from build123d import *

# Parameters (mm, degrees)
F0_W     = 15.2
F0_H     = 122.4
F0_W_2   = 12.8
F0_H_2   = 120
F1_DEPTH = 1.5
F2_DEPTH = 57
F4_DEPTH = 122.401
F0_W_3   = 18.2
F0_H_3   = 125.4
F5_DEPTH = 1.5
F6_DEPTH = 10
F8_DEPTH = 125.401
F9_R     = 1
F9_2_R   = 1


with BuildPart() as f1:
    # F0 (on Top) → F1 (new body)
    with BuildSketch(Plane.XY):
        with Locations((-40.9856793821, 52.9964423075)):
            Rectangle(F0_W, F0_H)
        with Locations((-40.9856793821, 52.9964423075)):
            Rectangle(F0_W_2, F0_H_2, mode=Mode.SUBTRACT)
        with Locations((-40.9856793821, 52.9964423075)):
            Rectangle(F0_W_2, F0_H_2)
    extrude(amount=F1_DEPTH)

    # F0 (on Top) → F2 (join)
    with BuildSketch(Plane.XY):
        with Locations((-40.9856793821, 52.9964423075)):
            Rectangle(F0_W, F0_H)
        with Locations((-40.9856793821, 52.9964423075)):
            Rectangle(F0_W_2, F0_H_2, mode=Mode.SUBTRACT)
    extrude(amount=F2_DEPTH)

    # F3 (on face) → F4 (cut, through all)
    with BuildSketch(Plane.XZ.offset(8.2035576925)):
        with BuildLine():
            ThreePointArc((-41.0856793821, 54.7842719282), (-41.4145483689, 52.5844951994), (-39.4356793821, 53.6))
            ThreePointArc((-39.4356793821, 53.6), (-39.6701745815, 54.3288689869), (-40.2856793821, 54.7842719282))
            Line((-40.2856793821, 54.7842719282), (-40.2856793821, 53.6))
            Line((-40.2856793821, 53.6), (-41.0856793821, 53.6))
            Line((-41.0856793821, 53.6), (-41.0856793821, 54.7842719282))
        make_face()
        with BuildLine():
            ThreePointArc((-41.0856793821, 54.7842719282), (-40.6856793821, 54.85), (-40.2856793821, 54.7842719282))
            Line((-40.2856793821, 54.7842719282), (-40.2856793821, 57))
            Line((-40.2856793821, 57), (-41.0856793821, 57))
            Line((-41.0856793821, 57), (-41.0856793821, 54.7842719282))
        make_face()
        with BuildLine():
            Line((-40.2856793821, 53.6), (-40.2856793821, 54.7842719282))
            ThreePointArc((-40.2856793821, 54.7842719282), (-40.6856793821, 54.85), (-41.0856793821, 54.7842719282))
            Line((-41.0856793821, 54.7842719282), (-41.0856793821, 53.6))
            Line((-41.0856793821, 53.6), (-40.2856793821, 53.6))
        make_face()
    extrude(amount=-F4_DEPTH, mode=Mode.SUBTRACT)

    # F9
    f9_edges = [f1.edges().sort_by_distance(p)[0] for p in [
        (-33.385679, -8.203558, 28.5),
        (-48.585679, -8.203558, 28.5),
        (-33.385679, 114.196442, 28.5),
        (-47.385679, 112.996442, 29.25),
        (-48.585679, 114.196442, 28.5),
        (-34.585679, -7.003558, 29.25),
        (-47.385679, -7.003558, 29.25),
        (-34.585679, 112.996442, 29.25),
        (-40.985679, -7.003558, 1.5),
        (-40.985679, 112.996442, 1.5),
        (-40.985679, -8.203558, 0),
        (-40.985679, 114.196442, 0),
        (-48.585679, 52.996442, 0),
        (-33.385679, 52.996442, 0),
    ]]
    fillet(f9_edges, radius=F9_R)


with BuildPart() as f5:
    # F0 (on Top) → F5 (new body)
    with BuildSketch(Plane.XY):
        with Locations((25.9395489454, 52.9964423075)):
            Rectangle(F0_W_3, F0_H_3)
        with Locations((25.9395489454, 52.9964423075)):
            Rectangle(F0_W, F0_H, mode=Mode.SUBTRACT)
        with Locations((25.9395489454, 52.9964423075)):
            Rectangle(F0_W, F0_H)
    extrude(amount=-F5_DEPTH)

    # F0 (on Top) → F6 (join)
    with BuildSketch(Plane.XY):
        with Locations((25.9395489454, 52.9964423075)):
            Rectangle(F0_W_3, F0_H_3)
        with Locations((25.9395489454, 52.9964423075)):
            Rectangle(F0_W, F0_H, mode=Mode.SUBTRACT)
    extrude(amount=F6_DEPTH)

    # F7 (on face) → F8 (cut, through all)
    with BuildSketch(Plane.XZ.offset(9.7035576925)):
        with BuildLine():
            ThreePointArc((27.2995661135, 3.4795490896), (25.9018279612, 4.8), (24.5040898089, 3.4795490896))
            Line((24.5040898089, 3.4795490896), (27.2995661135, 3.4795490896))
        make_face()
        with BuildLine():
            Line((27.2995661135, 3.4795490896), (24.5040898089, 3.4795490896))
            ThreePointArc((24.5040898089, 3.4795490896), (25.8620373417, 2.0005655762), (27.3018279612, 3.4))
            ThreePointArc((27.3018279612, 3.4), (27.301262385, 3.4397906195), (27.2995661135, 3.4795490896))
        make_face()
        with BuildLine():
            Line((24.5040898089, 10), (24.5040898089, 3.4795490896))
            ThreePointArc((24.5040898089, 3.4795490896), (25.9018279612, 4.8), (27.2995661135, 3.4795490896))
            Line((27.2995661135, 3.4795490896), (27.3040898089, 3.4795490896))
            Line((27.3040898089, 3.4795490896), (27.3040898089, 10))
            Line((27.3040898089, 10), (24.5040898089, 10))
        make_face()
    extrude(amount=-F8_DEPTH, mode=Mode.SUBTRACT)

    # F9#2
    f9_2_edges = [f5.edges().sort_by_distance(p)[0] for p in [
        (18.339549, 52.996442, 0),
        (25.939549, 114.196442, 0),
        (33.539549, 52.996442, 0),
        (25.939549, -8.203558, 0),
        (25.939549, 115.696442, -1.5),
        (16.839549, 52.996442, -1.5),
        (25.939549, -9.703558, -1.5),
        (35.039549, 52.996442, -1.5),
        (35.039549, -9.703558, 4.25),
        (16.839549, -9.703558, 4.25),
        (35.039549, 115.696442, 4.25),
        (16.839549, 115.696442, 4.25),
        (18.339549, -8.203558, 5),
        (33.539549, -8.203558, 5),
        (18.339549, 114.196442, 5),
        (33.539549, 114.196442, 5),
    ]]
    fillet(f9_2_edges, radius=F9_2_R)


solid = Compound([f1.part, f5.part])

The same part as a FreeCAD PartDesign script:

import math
import FreeCAD as App
import Part
import Sketcher
from FreeCAD import Vector


def edges_at(feature, points):
    """Names of the edges that pass closest to the given points."""
    edges = feature.Shape.Edges
    near = lambda p: min(range(len(edges)), key=lambda i: edges[i].distToShape(Part.Vertex(*p))[0])
    return sorted({f"Edge{near(p) + 1}" for p in points})

doc = App.newDocument("Part")
params = doc.addObject("Spreadsheet::Sheet", "Params")
for row, (alias, value) in enumerate([
    ("sketch1_width", "15.2 mm"),
    ("sketch1_height", "122.4 mm"),
    ("pad1_length", "1.5 mm"),
    ("sketch2_height", "120 mm"),
    ("sketch2_width", "15.2 mm"),
    ("sketch2_width2", "12.8 mm"),
    ("sketch2_height2", "122.4 mm"),
    ("pad2_length", "57 mm"),
    ("sketch3_radius", "1.25 mm"),
    ("sketch3_width", "0.8 mm"),
    ("fillet_radius", "1 mm"),
    ("sketch4_width", "18.2 mm"),
    ("sketch4_height", "125.4 mm"),
    ("pad3_length", "1.5 mm"),
    ("sketch5_width", "18.2 mm"),
    ("sketch5_width2", "15.2 mm"),
    ("sketch5_height", "125.4 mm"),
    ("sketch5_height2", "122.4 mm"),
    ("pad4_length", "10 mm"),
    ("sketch6_radius", "1.4 mm"),
    ("sketch6_width", "2.8 mm"),
    ("fillet2_radius", "1 mm"),
], start=1):
    params.set(f"A{row}", alias)
    params.set(f"B{row}", "=" + value)
    params.setAlias(f"B{row}", alias)

body = doc.addObject("PartDesign::Body", "Body")

# Sketch on XY plane
sketch1 = body.newObject("Sketcher::SketchObject", "Sketch")
sketch1.AttachmentSupport = (doc.getObject("XY_Plane"), [""])
sketch1.MapMode = "FlatFace"
sketch1.addGeometry(Part.LineSegment(Vector(-49, 114, 0), Vector(-49, -8, 0)), False)
sketch1.addGeometry(Part.LineSegment(Vector(-49, -8, 0), Vector(-33, -8, 0)), False)
sketch1.addGeometry(Part.LineSegment(Vector(-33, -8, 0), Vector(-33, 114, 0)), False)
sketch1.addGeometry(Part.LineSegment(Vector(-33, 114, 0), Vector(-49, 114, 0)), False)
sketch1.addConstraint(Sketcher.Constraint("Coincident", 0, 2, 1, 1))
sketch1.addConstraint(Sketcher.Constraint("Coincident", 1, 2, 2, 1))
sketch1.addConstraint(Sketcher.Constraint("Coincident", 2, 2, 3, 1))
sketch1.addConstraint(Sketcher.Constraint("Coincident", 3, 2, 0, 1))
sketch1.addConstraint(Sketcher.Constraint("Vertical", 0))
sketch1.addConstraint(Sketcher.Constraint("Horizontal", 1))
sketch1.addConstraint(Sketcher.Constraint("Vertical", 2))
sketch1.addConstraint(Sketcher.Constraint("Horizontal", 3))
sketch1.addConstraint(Sketcher.Constraint("DistanceX", 1, 1, 1, 2, 15.2))
sketch1.addConstraint(Sketcher.Constraint("DistanceY", 0, 2, 0, 1, 122.4))
sketch1.addConstraint(Sketcher.Constraint("DistanceX", 0, 2, -1, 1, 48.585679))
sketch1.addConstraint(Sketcher.Constraint("DistanceY", 0, 2, -1, 1, 8.203558))
sketch1.setExpression("Constraints[8]", "Params.sketch1_width")
sketch1.setExpression("Constraints[9]", "Params.sketch1_height")
pad1 = body.newObject("PartDesign::Pad", "Pad")
pad1.Profile = sketch1
pad1.setExpression("Length", "Params.pad1_length")

# Sketch on XY plane
sketch2 = body.newObject("Sketcher::SketchObject", "Sketch001")
sketch2.AttachmentSupport = (doc.getObject("XY_Plane"), [""])
sketch2.MapMode = "FlatFace"
sketch2.addGeometry(Part.LineSegment(Vector(-49, 114, 0), Vector(-49, -8, 0)), False)
sketch2.addGeometry(Part.LineSegment(Vector(-49, -8, 0), Vector(-33, -8, 0)), False)
sketch2.addGeometry(Part.LineSegment(Vector(-33, -8, 0), Vector(-33, 114, 0)), False)
sketch2.addGeometry(Part.LineSegment(Vector(-33, 114, 0), Vector(-49, 114, 0)), False)
sketch2.addGeometry(Part.LineSegment(Vector(-35, -7, 0), Vector(-47, -7, 0)), False)
sketch2.addGeometry(Part.LineSegment(Vector(-47, -7, 0), Vector(-47, 113, 0)), False)
sketch2.addGeometry(Part.LineSegment(Vector(-47, 113, 0), Vector(-35, 113, 0)), False)
sketch2.addGeometry(Part.LineSegment(Vector(-35, 113, 0), Vector(-35, -7, 0)), False)
sketch2.addConstraint(Sketcher.Constraint("Coincident", 0, 2, 1, 1))
sketch2.addConstraint(Sketcher.Constraint("Coincident", 1, 2, 2, 1))
sketch2.addConstraint(Sketcher.Constraint("Coincident", 2, 2, 3, 1))
sketch2.addConstraint(Sketcher.Constraint("Coincident", 3, 2, 0, 1))
sketch2.addConstraint(Sketcher.Constraint("Coincident", 4, 2, 5, 1))
sketch2.addConstraint(Sketcher.Constraint("Coincident", 5, 2, 6, 1))
sketch2.addConstraint(Sketcher.Constraint("Coincident", 6, 2, 7, 1))
sketch2.addConstraint(Sketcher.Constraint("Coincident", 7, 2, 4, 1))
sketch2.addConstraint(Sketcher.Constraint("Vertical", 0))
sketch2.addConstraint(Sketcher.Constraint("Horizontal", 1))
sketch2.addConstraint(Sketcher.Constraint("Vertical", 2))
sketch2.addConstraint(Sketcher.Constraint("Horizontal", 3))
sketch2.addConstraint(Sketcher.Constraint("Horizontal", 4))
sketch2.addConstraint(Sketcher.Constraint("Vertical", 5))
sketch2.addConstraint(Sketcher.Constraint("Horizontal", 6))
sketch2.addConstraint(Sketcher.Constraint("Vertical", 7))
sketch2.addConstraint(Sketcher.Constraint("DistanceY", 5, 1, 5, 2, 120.0))
sketch2.addConstraint(Sketcher.Constraint("DistanceX", 1, 1, 1, 2, 15.2))
sketch2.addConstraint(Sketcher.Constraint("DistanceX", 4, 2, 4, 1, 12.8))
sketch2.addConstraint(Sketcher.Constraint("DistanceY", 0, 2, 0, 1, 122.4))
sketch2.addConstraint(Sketcher.Constraint("DistanceX", 4, 2, 1, 2, 14.0))
sketch2.addConstraint(Sketcher.Constraint("DistanceY", 0, 2, 4, 2, 1.2))
sketch2.addConstraint(Sketcher.Constraint("DistanceX", 0, 2, -1, 1, 48.585679))
sketch2.addConstraint(Sketcher.Constraint("DistanceY", 0, 2, -1, 1, 8.203558))
sketch2.setExpression("Constraints[16]", "Params.sketch2_height")
sketch2.setExpression("Constraints[17]", "Params.sketch2_width")
sketch2.setExpression("Constraints[18]", "Params.sketch2_width2")
sketch2.setExpression("Constraints[19]", "Params.sketch2_height2")
pad2 = body.newObject("PartDesign::Pad", "Pad001")
pad2.Profile = sketch2
pad2.setExpression("Length", "Params.pad2_length")

# Sketch on XZ plane
sketch3 = body.newObject("Sketcher::SketchObject", "Sketch002")
sketch3.AttachmentSupport = (doc.getObject("XZ_Plane"), [""])
sketch3.MapMode = "FlatFace"
sketch3.AttachmentOffset = App.Placement(Vector(0, 0, 8.203558), App.Rotation())
sketch3.addGeometry(Part.ArcOfCircle(Part.Circle(Vector(-40.7, 53.6, 0), Vector(0, 0, 1), 1.2), math.radians(109), math.radians(360)), False)
sketch3.addGeometry(Part.ArcOfCircle(Part.Circle(Vector(-40.7, 53.6, 0), Vector(0, 0, 1), 1.2), math.radians(0), math.radians(71)), False)
sketch3.addGeometry(Part.LineSegment(Vector(-40.3, 54.8, 0), Vector(-40.3, 57, 0)), False)
sketch3.addGeometry(Part.LineSegment(Vector(-40.3, 57, 0), Vector(-41.1, 57, 0)), False)
sketch3.addGeometry(Part.LineSegment(Vector(-41.1, 57, 0), Vector(-41.1, 54.8, 0)), False)
sketch3.addConstraint(Sketcher.Constraint("Tangent", 0, 2, 1, 1))
sketch3.addConstraint(Sketcher.Constraint("Coincident", 1, 2, 2, 1))
sketch3.addConstraint(Sketcher.Constraint("Coincident", 2, 2, 3, 1))
sketch3.addConstraint(Sketcher.Constraint("Coincident", 3, 2, 4, 1))
sketch3.addConstraint(Sketcher.Constraint("Coincident", 4, 2, 0, 1))
sketch3.addConstraint(Sketcher.Constraint("Vertical", 2))
sketch3.addConstraint(Sketcher.Constraint("Horizontal", 3))
sketch3.addConstraint(Sketcher.Constraint("Vertical", 4))
sketch3.addConstraint(Sketcher.Constraint("Equal", 0, 1))
sketch3.addConstraint(Sketcher.Constraint("Horizontal", 1, 3, 0, 2))
sketch3.addConstraint(Sketcher.Constraint("Horizontal", 1, 2, 4, 2))
sketch3.addConstraint(Sketcher.Constraint("Radius", 0, 1.25))
sketch3.addConstraint(Sketcher.Constraint("DistanceX", 3, 2, 3, 1, 0.8))
sketch3.addConstraint(Sketcher.Constraint("DistanceY", -1, 1, 2, 2, 57.0))
sketch3.addConstraint(Sketcher.Constraint("DistanceY", -1, 1, 0, 3, 53.6))
sketch3.addConstraint(Sketcher.Constraint("DistanceX", 0, 3, -1, 1, 40.685679))
sketch3.setExpression("Constraints[11]", "Params.sketch3_radius")
sketch3.setExpression("Constraints[12]", "Params.sketch3_width")
pocket1 = body.newObject("PartDesign::Pocket", "Pocket")
pocket1.Profile = sketch3
pocket1.Type = "ThroughAll"
doc.recompute()

fillet = body.newObject("PartDesign::Fillet", "Fillet")
fillet.Base = (pocket1, edges_at(pocket1, [
    (-33.386, -8.204, 28.5),
    (-48.586, -8.204, 28.5),
    (-33.386, 114.196, 28.5),
    (-47.386, 112.996, 29.25),
    (-48.586, 114.196, 28.5),
    (-34.586, -7.004, 29.25),
    (-47.386, -7.004, 29.25),
    (-34.586, 112.996, 29.25),
    (-40.986, -7.004, 1.5),
    (-40.986, 112.996, 1.5),
    (-40.986, -8.204, 0),
    (-40.986, 114.196, 0),
    (-48.586, 52.996, 0),
    (-33.386, 52.996, 0),
]))
fillet.setExpression("Radius", "Params.fillet_radius")
body2 = doc.addObject("PartDesign::Body", "Body001")

# Sketch on XY plane
sketch4 = body2.newObject("Sketcher::SketchObject", "Sketch003")
sketch4.AttachmentSupport = (doc.getObject("XY_Plane001"), [""])
sketch4.MapMode = "FlatFace"
sketch4.addGeometry(Part.LineSegment(Vector(17, 116, 0), Vector(17, -10, 0)), False)
sketch4.addGeometry(Part.LineSegment(Vector(17, -10, 0), Vector(35, -10, 0)), False)
sketch4.addGeometry(Part.LineSegment(Vector(35, -10, 0), Vector(35, 116, 0)), False)
sketch4.addGeometry(Part.LineSegment(Vector(35, 116, 0), Vector(17, 116, 0)), False)
sketch4.addConstraint(Sketcher.Constraint("Coincident", 0, 2, 1, 1))
sketch4.addConstraint(Sketcher.Constraint("Coincident", 1, 2, 2, 1))
sketch4.addConstraint(Sketcher.Constraint("Coincident", 2, 2, 3, 1))
sketch4.addConstraint(Sketcher.Constraint("Coincident", 3, 2, 0, 1))
sketch4.addConstraint(Sketcher.Constraint("Vertical", 0))
sketch4.addConstraint(Sketcher.Constraint("Horizontal", 1))
sketch4.addConstraint(Sketcher.Constraint("Vertical", 2))
sketch4.addConstraint(Sketcher.Constraint("Horizontal", 3))
sketch4.addConstraint(Sketcher.Constraint("DistanceX", 1, 1, 1, 2, 18.2))
sketch4.addConstraint(Sketcher.Constraint("DistanceY", 0, 2, 0, 1, 125.4))
sketch4.addConstraint(Sketcher.Constraint("DistanceX", -1, 1, 0, 2, 16.839549))
sketch4.addConstraint(Sketcher.Constraint("DistanceY", 0, 2, -1, 1, 9.703558))
sketch4.setExpression("Constraints[8]", "Params.sketch4_width")
sketch4.setExpression("Constraints[9]", "Params.sketch4_height")
pad3 = body2.newObject("PartDesign::Pad", "Pad002")
pad3.Profile = sketch4
pad3.setExpression("Length", "Params.pad3_length")
pad3.Reversed = True

# Sketch on XY plane
sketch5 = body2.newObject("Sketcher::SketchObject", "Sketch004")
sketch5.AttachmentSupport = (doc.getObject("XY_Plane001"), [""])
sketch5.MapMode = "FlatFace"
sketch5.addGeometry(Part.LineSegment(Vector(17, 116, 0), Vector(17, -10, 0)), False)
sketch5.addGeometry(Part.LineSegment(Vector(17, -10, 0), Vector(35, -10, 0)), False)
sketch5.addGeometry(Part.LineSegment(Vector(35, -10, 0), Vector(35, 116, 0)), False)
sketch5.addGeometry(Part.LineSegment(Vector(35, 116, 0), Vector(17, 116, 0)), False)
sketch5.addGeometry(Part.LineSegment(Vector(34, -8, 0), Vector(18, -8, 0)), False)
sketch5.addGeometry(Part.LineSegment(Vector(18, -8, 0), Vector(18, 114, 0)), False)
sketch5.addGeometry(Part.LineSegment(Vector(18, 114, 0), Vector(34, 114, 0)), False)
sketch5.addGeometry(Part.LineSegment(Vector(34, 114, 0), Vector(34, -8, 0)), False)
sketch5.addConstraint(Sketcher.Constraint("Coincident", 0, 2, 1, 1))
sketch5.addConstraint(Sketcher.Constraint("Coincident", 1, 2, 2, 1))
sketch5.addConstraint(Sketcher.Constraint("Coincident", 2, 2, 3, 1))
sketch5.addConstraint(Sketcher.Constraint("Coincident", 3, 2, 0, 1))
sketch5.addConstraint(Sketcher.Constraint("Coincident", 4, 2, 5, 1))
sketch5.addConstraint(Sketcher.Constraint("Coincident", 5, 2, 6, 1))
sketch5.addConstraint(Sketcher.Constraint("Coincident", 6, 2, 7, 1))
sketch5.addConstraint(Sketcher.Constraint("Coincident", 7, 2, 4, 1))
sketch5.addConstraint(Sketcher.Constraint("Vertical", 0))
sketch5.addConstraint(Sketcher.Constraint("Horizontal", 1))
sketch5.addConstraint(Sketcher.Constraint("Vertical", 2))
sketch5.addConstraint(Sketcher.Constraint("Horizontal", 3))
sketch5.addConstraint(Sketcher.Constraint("Horizontal", 4))
sketch5.addConstraint(Sketcher.Constraint("Vertical", 5))
sketch5.addConstraint(Sketcher.Constraint("Horizontal", 6))
sketch5.addConstraint(Sketcher.Constraint("Vertical", 7))
sketch5.addConstraint(Sketcher.Constraint("DistanceX", 1, 1, 1, 2, 18.2))
sketch5.addConstraint(Sketcher.Constraint("DistanceX", 4, 2, 4, 1, 15.2))
sketch5.addConstraint(Sketcher.Constraint("DistanceY", 0, 2, 0, 1, 125.4))
sketch5.addConstraint(Sketcher.Constraint("DistanceY", 5, 1, 5, 2, 122.4))
sketch5.addConstraint(Sketcher.Constraint("DistanceX", 0, 2, 4, 2, 1.5))
sketch5.addConstraint(Sketcher.Constraint("DistanceY", 0, 2, 4, 2, 1.5))
sketch5.addConstraint(Sketcher.Constraint("DistanceX", -1, 1, 0, 2, 16.839549))
sketch5.addConstraint(Sketcher.Constraint("DistanceY", 0, 2, -1, 1, 9.703558))
sketch5.setExpression("Constraints[16]", "Params.sketch5_width")
sketch5.setExpression("Constraints[17]", "Params.sketch5_width2")
sketch5.setExpression("Constraints[18]", "Params.sketch5_height")
sketch5.setExpression("Constraints[19]", "Params.sketch5_height2")
pad4 = body2.newObject("PartDesign::Pad", "Pad003")
pad4.Profile = sketch5
pad4.setExpression("Length", "Params.pad4_length")

# Sketch on XZ plane
sketch6 = body2.newObject("Sketcher::SketchObject", "Sketch005")
sketch6.AttachmentSupport = (doc.getObject("XZ_Plane001"), [""])
sketch6.MapMode = "FlatFace"
sketch6.AttachmentOffset = App.Placement(Vector(0, 0, 9.703558), App.Rotation())
sketch6.addGeometry(Part.ArcOfCircle(Part.Circle(Vector(25.9018, 3.4, 0), Vector(0, 0, 1), 1.4), math.radians(177), math.radians(360)), False)
sketch6.addGeometry(Part.ArcOfCircle(Part.Circle(Vector(25.9018, 3.4, 0), Vector(0, 0, 1), 1.4), math.radians(0), math.radians(3.26)), False)
sketch6.addGeometry(Part.LineSegment(Vector(27.2996, 3.4795, 0), Vector(27.3041, 3.4795, 0)), False)
sketch6.addGeometry(Part.LineSegment(Vector(27.3041, 3.4795, 0), Vector(27.3041, 10, 0)), False)
sketch6.addGeometry(Part.LineSegment(Vector(27.3041, 10, 0), Vector(24.5041, 10, 0)), False)
sketch6.addGeometry(Part.LineSegment(Vector(24.5041, 10, 0), Vector(24.5041, 3.4795, 0)), False)
sketch6.addConstraint(Sketcher.Constraint("Tangent", 0, 2, 1, 1))
sketch6.addConstraint(Sketcher.Constraint("Coincident", 1, 2, 2, 1))
sketch6.addConstraint(Sketcher.Constraint("Coincident", 2, 2, 3, 1))
sketch6.addConstraint(Sketcher.Constraint("Coincident", 3, 2, 4, 1))
sketch6.addConstraint(Sketcher.Constraint("Coincident", 4, 2, 5, 1))
sketch6.addConstraint(Sketcher.Constraint("Coincident", 5, 2, 0, 1))
sketch6.addConstraint(Sketcher.Constraint("Horizontal", 2))
sketch6.addConstraint(Sketcher.Constraint("Vertical", 3))
sketch6.addConstraint(Sketcher.Constraint("Horizontal", 4))
sketch6.addConstraint(Sketcher.Constraint("Vertical", 5))
sketch6.addConstraint(Sketcher.Constraint("Equal", 0, 1))
sketch6.addConstraint(Sketcher.Constraint("Horizontal", 1, 3, 0, 2))
sketch6.addConstraint(Sketcher.Constraint("Horizontal", 2, 2, 5, 2))
sketch6.addConstraint(Sketcher.Constraint("Radius", 0, 1.4))
sketch6.addConstraint(Sketcher.Constraint("DistanceX", 4, 2, 4, 1, 2.8))
sketch6.addConstraint(Sketcher.Constraint("DistanceY", -1, 1, 3, 2, 10.0))
sketch6.addConstraint(Sketcher.Constraint("DistanceY", -1, 1, 0, 3, 3.4))
sketch6.addConstraint(Sketcher.Constraint("DistanceY", 3, 1, 3, 2, 6.520451))
sketch6.addConstraint(Sketcher.Constraint("DistanceX", -1, 1, 2, 2, 27.30409))
sketch6.setExpression("Constraints[13]", "Params.sketch6_radius")
sketch6.setExpression("Constraints[14]", "Params.sketch6_width")
pocket2 = body2.newObject("PartDesign::Pocket", "Pocket001")
pocket2.Profile = sketch6
pocket2.Type = "ThroughAll"
doc.recompute()

fillet2 = body2.newObject("PartDesign::Fillet", "Fillet001")
fillet2.Base = (pocket2, edges_at(pocket2, [
    (18.34, 52.996, 0),
    (25.94, 114.196, 0),
    (33.54, 52.996, 0),
    (25.94, -8.204, 0),
    (25.94, 115.696, -1.5),
    (16.84, 52.996, -1.5),
    (25.94, -9.704, -1.5),
    (35.04, 52.996, -1.5),
    (35.04, -9.704, 4.25),
    (16.84, -9.704, 4.25),
    (35.04, 115.696, 4.25),
    (16.84, 115.696, 4.25),
    (18.34, -8.204, 5),
    (33.54, -8.204, 5),
    (18.34, 114.196, 5),
    (33.54, 114.196, 5),
]))
fillet2.setExpression("Radius", "Params.fillet2_radius")

doc.recompute()
